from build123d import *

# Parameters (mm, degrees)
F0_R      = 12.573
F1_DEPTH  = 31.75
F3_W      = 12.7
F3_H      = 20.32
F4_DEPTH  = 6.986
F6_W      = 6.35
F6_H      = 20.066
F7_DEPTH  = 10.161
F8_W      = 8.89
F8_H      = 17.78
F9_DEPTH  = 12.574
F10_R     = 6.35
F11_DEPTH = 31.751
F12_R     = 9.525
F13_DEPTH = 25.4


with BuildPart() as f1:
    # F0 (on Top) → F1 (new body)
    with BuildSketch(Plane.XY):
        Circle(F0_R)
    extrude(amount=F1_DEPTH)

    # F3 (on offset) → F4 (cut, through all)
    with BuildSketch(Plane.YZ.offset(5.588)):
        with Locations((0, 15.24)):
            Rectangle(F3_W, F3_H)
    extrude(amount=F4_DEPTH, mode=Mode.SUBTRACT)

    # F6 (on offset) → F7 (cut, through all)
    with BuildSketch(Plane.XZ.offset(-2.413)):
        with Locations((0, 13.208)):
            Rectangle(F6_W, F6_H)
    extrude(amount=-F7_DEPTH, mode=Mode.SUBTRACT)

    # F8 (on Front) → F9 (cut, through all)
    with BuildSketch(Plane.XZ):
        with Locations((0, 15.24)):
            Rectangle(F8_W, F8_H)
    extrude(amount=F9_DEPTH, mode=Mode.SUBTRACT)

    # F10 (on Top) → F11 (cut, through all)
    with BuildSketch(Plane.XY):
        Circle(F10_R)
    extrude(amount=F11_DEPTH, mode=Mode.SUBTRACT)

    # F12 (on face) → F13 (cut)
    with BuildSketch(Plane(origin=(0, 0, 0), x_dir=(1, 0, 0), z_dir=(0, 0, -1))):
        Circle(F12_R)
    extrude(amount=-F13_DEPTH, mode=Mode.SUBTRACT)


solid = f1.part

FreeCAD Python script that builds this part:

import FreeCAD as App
import Part
import Sketcher
from FreeCAD import Vector
Q = App.Units.Quantity


def add_polygon(sketch, points):
    """Adds a closed chain of lines whose ends are joined by coincident constraints."""
    first, n = sketch.GeometryCount, len(points)
    for a, b in zip(points, points[1:] + points[:1]):
        sketch.addGeometry(Part.LineSegment(App.Vector(*a, 0), App.Vector(*b, 0)), False)
    for i in range(n):
        sketch.addConstraint(Sketcher.Constraint("Coincident", first + i, 2, first + (i + 1) % n, 1))

doc = App.newDocument("Part")
body = doc.addObject("PartDesign::Body", "Body")

sketch1 = body.newObject("Sketcher::SketchObject", "Sketch")
sketch1.AttachmentSupport = (doc.getObject("XY_Plane"), [""])
sketch1.MapMode = "FlatFace"
sketch1.addGeometry(Part.Circle(Vector(0, 0, 0), Vector(0, 0, 1), 13), False)
sketch1.addConstraint([
    Sketcher.Constraint("Coincident", 0, 3, -1, 1),
    Sketcher.Constraint("Diameter", 0, Q("0.99 in")),
])
pad1 = body.newObject("PartDesign::Pad", "Pad")
pad1.Profile = sketch1
pad1.Length = Q("1.25 in")

sketch2 = body.newObject("Sketcher::SketchObject", "Sketch001")
sketch2.AttachmentSupport = (doc.getObject("YZ_Plane"), [""])
sketch2.MapMode = "FlatFace"
sketch2.AttachmentOffset = App.Placement(Vector(0, 0, 0.22 * 25.4), App.Rotation())
add_polygon(sketch2, [(-6, 25), (-6, 5), (6, 5), (6, 25)])
sketch2.addConstraint([
    Sketcher.Constraint("Vertical", 0),
    Sketcher.Constraint("Horizontal", 1),
    Sketcher.Constraint("Vertical", 2),
    Sketcher.Constraint("Horizontal", 3),
    Sketcher.Constraint("DistanceX", 1, 1, 1, 2, Q("0.5 in")),
    Sketcher.Constraint("DistanceY", 0, 2, 0, 1, Q("0.8 in")),
    Sketcher.Constraint("DistanceY", -1, 1, 2, 2, Q("1 in")),
    Sketcher.Constraint("DistanceX", 0, 2, -1, 1, Q("0.25 in")),
])
pocket1 = body.newObject("PartDesign::Pocket", "Pocket")
pocket1.Profile = sketch2
pocket1.Type = "ThroughAll"
pocket1.Reversed = True

sketch3 = body.newObject("Sketcher::SketchObject", "Sketch002")
sketch3.AttachmentSupport = (doc.getObject("XZ_Plane"), [""])
sketch3.MapMode = "FlatFace"
sketch3.AttachmentOffset = App.Placement(Vector(0, 0, -0.095 * 25.4), App.Rotation())
add_polygon(sketch3, [(-3, 23), (-3, 3), (3, 3), (3, 23)])
sketch3.addConstraint([
    Sketcher.Constraint("Vertical", 0),
    Sketcher.Constraint("Horizontal", 1),
    Sketcher.Constraint("Vertical", 2),
    Sketcher.Constraint("Horizontal", 3),
    Sketcher.Constraint("DistanceX", 1, 1, 1, 2, Q("0.25 in")),
    Sketcher.Constraint("DistanceY", 0, 2, 0, 1, Q("0.79 in")),
    Sketcher.Constraint("DistanceX", 0, 2, -1, 1, Q("0.125 in")),
    Sketcher.Constraint("DistanceY", -1, 1, 0, 2, Q("0.125 in")),
])
pocket2 = body.newObject("PartDesign::Pocket", "Pocket001")
pocket2.Profile = sketch3
pocket2.Type = "ThroughAll"

sketch4 = body.newObject("Sketcher::SketchObject", "Sketch003")
sketch4.AttachmentSupport = (doc.getObject("XZ_Plane"), [""])
sketch4.MapMode = "FlatFace"
add_polygon(sketch4, [(-4, 24), (-4, 6), (4, 6), (4, 24)])
sketch4.addConstraint([
    Sketcher.Constraint("Vertical", 0),
    Sketcher.Constraint("Horizontal", 1),
    Sketcher.Constraint("Vertical", 2),
    Sketcher.Constraint("Horizontal", 3),
    Sketcher.Constraint("DistanceY", 0, 2, 0, 1, Q("0.7 in")),
    Sketcher.Constraint("DistanceX", 1, 1, 1, 2, Q("0.35 in")),
    Sketcher.Constraint("DistanceY", -1, 1, 0, 2, Q("0.25 in")),
    Sketcher.Constraint("DistanceX", 0, 2, -1, 1, Q("0.175 in")),
])
pocket3 = body.newObject("PartDesign::Pocket", "Pocket002")
pocket3.Profile = sketch4
pocket3.Type = "ThroughAll"
pocket3.Reversed = True

sketch5 = body.newObject("Sketcher::SketchObject", "Sketch004")
sketch5.AttachmentSupport = (doc.getObject("XY_Plane"), [""])
sketch5.MapMode = "FlatFace"
sketch5.addGeometry(Part.Circle(Vector(0, 0, 0), Vector(0, 0, 1), 6), False)
sketch5.addConstraint([
    Sketcher.Constraint("Coincident", 0, 3, -1, 1),
    Sketcher.Constraint("Diameter", 0, Q("0.5 in")),
])
pocket4 = body.newObject("PartDesign::Pocket", "Pocket003")
pocket4.Profile = sketch5
pocket4.Type = "ThroughAll"
pocket4.Reversed = True

sketch6 = body.newObject("Sketcher::SketchObject", "Sketch005")
sketch6.AttachmentSupport = (doc.getObject("XY_Plane"), [""])
sketch6.MapMode = "FlatFace"
sketch6.addGeometry(Part.Circle(Vector(0, 0, 0), Vector(0, 0, 1), 10), False)
sketch6.addConstraint([
    Sketcher.Constraint("Coincident", 0, 3, -1, 1),
    Sketcher.Constraint("Diameter", 0, Q("0.75 in")),
])
pocket5 = body.newObject("PartDesign::Pocket", "Pocket004")
pocket5.Profile = sketch6
pocket5.Length = Q("1 in")
pocket5.Reversed = True

doc.recompute()
